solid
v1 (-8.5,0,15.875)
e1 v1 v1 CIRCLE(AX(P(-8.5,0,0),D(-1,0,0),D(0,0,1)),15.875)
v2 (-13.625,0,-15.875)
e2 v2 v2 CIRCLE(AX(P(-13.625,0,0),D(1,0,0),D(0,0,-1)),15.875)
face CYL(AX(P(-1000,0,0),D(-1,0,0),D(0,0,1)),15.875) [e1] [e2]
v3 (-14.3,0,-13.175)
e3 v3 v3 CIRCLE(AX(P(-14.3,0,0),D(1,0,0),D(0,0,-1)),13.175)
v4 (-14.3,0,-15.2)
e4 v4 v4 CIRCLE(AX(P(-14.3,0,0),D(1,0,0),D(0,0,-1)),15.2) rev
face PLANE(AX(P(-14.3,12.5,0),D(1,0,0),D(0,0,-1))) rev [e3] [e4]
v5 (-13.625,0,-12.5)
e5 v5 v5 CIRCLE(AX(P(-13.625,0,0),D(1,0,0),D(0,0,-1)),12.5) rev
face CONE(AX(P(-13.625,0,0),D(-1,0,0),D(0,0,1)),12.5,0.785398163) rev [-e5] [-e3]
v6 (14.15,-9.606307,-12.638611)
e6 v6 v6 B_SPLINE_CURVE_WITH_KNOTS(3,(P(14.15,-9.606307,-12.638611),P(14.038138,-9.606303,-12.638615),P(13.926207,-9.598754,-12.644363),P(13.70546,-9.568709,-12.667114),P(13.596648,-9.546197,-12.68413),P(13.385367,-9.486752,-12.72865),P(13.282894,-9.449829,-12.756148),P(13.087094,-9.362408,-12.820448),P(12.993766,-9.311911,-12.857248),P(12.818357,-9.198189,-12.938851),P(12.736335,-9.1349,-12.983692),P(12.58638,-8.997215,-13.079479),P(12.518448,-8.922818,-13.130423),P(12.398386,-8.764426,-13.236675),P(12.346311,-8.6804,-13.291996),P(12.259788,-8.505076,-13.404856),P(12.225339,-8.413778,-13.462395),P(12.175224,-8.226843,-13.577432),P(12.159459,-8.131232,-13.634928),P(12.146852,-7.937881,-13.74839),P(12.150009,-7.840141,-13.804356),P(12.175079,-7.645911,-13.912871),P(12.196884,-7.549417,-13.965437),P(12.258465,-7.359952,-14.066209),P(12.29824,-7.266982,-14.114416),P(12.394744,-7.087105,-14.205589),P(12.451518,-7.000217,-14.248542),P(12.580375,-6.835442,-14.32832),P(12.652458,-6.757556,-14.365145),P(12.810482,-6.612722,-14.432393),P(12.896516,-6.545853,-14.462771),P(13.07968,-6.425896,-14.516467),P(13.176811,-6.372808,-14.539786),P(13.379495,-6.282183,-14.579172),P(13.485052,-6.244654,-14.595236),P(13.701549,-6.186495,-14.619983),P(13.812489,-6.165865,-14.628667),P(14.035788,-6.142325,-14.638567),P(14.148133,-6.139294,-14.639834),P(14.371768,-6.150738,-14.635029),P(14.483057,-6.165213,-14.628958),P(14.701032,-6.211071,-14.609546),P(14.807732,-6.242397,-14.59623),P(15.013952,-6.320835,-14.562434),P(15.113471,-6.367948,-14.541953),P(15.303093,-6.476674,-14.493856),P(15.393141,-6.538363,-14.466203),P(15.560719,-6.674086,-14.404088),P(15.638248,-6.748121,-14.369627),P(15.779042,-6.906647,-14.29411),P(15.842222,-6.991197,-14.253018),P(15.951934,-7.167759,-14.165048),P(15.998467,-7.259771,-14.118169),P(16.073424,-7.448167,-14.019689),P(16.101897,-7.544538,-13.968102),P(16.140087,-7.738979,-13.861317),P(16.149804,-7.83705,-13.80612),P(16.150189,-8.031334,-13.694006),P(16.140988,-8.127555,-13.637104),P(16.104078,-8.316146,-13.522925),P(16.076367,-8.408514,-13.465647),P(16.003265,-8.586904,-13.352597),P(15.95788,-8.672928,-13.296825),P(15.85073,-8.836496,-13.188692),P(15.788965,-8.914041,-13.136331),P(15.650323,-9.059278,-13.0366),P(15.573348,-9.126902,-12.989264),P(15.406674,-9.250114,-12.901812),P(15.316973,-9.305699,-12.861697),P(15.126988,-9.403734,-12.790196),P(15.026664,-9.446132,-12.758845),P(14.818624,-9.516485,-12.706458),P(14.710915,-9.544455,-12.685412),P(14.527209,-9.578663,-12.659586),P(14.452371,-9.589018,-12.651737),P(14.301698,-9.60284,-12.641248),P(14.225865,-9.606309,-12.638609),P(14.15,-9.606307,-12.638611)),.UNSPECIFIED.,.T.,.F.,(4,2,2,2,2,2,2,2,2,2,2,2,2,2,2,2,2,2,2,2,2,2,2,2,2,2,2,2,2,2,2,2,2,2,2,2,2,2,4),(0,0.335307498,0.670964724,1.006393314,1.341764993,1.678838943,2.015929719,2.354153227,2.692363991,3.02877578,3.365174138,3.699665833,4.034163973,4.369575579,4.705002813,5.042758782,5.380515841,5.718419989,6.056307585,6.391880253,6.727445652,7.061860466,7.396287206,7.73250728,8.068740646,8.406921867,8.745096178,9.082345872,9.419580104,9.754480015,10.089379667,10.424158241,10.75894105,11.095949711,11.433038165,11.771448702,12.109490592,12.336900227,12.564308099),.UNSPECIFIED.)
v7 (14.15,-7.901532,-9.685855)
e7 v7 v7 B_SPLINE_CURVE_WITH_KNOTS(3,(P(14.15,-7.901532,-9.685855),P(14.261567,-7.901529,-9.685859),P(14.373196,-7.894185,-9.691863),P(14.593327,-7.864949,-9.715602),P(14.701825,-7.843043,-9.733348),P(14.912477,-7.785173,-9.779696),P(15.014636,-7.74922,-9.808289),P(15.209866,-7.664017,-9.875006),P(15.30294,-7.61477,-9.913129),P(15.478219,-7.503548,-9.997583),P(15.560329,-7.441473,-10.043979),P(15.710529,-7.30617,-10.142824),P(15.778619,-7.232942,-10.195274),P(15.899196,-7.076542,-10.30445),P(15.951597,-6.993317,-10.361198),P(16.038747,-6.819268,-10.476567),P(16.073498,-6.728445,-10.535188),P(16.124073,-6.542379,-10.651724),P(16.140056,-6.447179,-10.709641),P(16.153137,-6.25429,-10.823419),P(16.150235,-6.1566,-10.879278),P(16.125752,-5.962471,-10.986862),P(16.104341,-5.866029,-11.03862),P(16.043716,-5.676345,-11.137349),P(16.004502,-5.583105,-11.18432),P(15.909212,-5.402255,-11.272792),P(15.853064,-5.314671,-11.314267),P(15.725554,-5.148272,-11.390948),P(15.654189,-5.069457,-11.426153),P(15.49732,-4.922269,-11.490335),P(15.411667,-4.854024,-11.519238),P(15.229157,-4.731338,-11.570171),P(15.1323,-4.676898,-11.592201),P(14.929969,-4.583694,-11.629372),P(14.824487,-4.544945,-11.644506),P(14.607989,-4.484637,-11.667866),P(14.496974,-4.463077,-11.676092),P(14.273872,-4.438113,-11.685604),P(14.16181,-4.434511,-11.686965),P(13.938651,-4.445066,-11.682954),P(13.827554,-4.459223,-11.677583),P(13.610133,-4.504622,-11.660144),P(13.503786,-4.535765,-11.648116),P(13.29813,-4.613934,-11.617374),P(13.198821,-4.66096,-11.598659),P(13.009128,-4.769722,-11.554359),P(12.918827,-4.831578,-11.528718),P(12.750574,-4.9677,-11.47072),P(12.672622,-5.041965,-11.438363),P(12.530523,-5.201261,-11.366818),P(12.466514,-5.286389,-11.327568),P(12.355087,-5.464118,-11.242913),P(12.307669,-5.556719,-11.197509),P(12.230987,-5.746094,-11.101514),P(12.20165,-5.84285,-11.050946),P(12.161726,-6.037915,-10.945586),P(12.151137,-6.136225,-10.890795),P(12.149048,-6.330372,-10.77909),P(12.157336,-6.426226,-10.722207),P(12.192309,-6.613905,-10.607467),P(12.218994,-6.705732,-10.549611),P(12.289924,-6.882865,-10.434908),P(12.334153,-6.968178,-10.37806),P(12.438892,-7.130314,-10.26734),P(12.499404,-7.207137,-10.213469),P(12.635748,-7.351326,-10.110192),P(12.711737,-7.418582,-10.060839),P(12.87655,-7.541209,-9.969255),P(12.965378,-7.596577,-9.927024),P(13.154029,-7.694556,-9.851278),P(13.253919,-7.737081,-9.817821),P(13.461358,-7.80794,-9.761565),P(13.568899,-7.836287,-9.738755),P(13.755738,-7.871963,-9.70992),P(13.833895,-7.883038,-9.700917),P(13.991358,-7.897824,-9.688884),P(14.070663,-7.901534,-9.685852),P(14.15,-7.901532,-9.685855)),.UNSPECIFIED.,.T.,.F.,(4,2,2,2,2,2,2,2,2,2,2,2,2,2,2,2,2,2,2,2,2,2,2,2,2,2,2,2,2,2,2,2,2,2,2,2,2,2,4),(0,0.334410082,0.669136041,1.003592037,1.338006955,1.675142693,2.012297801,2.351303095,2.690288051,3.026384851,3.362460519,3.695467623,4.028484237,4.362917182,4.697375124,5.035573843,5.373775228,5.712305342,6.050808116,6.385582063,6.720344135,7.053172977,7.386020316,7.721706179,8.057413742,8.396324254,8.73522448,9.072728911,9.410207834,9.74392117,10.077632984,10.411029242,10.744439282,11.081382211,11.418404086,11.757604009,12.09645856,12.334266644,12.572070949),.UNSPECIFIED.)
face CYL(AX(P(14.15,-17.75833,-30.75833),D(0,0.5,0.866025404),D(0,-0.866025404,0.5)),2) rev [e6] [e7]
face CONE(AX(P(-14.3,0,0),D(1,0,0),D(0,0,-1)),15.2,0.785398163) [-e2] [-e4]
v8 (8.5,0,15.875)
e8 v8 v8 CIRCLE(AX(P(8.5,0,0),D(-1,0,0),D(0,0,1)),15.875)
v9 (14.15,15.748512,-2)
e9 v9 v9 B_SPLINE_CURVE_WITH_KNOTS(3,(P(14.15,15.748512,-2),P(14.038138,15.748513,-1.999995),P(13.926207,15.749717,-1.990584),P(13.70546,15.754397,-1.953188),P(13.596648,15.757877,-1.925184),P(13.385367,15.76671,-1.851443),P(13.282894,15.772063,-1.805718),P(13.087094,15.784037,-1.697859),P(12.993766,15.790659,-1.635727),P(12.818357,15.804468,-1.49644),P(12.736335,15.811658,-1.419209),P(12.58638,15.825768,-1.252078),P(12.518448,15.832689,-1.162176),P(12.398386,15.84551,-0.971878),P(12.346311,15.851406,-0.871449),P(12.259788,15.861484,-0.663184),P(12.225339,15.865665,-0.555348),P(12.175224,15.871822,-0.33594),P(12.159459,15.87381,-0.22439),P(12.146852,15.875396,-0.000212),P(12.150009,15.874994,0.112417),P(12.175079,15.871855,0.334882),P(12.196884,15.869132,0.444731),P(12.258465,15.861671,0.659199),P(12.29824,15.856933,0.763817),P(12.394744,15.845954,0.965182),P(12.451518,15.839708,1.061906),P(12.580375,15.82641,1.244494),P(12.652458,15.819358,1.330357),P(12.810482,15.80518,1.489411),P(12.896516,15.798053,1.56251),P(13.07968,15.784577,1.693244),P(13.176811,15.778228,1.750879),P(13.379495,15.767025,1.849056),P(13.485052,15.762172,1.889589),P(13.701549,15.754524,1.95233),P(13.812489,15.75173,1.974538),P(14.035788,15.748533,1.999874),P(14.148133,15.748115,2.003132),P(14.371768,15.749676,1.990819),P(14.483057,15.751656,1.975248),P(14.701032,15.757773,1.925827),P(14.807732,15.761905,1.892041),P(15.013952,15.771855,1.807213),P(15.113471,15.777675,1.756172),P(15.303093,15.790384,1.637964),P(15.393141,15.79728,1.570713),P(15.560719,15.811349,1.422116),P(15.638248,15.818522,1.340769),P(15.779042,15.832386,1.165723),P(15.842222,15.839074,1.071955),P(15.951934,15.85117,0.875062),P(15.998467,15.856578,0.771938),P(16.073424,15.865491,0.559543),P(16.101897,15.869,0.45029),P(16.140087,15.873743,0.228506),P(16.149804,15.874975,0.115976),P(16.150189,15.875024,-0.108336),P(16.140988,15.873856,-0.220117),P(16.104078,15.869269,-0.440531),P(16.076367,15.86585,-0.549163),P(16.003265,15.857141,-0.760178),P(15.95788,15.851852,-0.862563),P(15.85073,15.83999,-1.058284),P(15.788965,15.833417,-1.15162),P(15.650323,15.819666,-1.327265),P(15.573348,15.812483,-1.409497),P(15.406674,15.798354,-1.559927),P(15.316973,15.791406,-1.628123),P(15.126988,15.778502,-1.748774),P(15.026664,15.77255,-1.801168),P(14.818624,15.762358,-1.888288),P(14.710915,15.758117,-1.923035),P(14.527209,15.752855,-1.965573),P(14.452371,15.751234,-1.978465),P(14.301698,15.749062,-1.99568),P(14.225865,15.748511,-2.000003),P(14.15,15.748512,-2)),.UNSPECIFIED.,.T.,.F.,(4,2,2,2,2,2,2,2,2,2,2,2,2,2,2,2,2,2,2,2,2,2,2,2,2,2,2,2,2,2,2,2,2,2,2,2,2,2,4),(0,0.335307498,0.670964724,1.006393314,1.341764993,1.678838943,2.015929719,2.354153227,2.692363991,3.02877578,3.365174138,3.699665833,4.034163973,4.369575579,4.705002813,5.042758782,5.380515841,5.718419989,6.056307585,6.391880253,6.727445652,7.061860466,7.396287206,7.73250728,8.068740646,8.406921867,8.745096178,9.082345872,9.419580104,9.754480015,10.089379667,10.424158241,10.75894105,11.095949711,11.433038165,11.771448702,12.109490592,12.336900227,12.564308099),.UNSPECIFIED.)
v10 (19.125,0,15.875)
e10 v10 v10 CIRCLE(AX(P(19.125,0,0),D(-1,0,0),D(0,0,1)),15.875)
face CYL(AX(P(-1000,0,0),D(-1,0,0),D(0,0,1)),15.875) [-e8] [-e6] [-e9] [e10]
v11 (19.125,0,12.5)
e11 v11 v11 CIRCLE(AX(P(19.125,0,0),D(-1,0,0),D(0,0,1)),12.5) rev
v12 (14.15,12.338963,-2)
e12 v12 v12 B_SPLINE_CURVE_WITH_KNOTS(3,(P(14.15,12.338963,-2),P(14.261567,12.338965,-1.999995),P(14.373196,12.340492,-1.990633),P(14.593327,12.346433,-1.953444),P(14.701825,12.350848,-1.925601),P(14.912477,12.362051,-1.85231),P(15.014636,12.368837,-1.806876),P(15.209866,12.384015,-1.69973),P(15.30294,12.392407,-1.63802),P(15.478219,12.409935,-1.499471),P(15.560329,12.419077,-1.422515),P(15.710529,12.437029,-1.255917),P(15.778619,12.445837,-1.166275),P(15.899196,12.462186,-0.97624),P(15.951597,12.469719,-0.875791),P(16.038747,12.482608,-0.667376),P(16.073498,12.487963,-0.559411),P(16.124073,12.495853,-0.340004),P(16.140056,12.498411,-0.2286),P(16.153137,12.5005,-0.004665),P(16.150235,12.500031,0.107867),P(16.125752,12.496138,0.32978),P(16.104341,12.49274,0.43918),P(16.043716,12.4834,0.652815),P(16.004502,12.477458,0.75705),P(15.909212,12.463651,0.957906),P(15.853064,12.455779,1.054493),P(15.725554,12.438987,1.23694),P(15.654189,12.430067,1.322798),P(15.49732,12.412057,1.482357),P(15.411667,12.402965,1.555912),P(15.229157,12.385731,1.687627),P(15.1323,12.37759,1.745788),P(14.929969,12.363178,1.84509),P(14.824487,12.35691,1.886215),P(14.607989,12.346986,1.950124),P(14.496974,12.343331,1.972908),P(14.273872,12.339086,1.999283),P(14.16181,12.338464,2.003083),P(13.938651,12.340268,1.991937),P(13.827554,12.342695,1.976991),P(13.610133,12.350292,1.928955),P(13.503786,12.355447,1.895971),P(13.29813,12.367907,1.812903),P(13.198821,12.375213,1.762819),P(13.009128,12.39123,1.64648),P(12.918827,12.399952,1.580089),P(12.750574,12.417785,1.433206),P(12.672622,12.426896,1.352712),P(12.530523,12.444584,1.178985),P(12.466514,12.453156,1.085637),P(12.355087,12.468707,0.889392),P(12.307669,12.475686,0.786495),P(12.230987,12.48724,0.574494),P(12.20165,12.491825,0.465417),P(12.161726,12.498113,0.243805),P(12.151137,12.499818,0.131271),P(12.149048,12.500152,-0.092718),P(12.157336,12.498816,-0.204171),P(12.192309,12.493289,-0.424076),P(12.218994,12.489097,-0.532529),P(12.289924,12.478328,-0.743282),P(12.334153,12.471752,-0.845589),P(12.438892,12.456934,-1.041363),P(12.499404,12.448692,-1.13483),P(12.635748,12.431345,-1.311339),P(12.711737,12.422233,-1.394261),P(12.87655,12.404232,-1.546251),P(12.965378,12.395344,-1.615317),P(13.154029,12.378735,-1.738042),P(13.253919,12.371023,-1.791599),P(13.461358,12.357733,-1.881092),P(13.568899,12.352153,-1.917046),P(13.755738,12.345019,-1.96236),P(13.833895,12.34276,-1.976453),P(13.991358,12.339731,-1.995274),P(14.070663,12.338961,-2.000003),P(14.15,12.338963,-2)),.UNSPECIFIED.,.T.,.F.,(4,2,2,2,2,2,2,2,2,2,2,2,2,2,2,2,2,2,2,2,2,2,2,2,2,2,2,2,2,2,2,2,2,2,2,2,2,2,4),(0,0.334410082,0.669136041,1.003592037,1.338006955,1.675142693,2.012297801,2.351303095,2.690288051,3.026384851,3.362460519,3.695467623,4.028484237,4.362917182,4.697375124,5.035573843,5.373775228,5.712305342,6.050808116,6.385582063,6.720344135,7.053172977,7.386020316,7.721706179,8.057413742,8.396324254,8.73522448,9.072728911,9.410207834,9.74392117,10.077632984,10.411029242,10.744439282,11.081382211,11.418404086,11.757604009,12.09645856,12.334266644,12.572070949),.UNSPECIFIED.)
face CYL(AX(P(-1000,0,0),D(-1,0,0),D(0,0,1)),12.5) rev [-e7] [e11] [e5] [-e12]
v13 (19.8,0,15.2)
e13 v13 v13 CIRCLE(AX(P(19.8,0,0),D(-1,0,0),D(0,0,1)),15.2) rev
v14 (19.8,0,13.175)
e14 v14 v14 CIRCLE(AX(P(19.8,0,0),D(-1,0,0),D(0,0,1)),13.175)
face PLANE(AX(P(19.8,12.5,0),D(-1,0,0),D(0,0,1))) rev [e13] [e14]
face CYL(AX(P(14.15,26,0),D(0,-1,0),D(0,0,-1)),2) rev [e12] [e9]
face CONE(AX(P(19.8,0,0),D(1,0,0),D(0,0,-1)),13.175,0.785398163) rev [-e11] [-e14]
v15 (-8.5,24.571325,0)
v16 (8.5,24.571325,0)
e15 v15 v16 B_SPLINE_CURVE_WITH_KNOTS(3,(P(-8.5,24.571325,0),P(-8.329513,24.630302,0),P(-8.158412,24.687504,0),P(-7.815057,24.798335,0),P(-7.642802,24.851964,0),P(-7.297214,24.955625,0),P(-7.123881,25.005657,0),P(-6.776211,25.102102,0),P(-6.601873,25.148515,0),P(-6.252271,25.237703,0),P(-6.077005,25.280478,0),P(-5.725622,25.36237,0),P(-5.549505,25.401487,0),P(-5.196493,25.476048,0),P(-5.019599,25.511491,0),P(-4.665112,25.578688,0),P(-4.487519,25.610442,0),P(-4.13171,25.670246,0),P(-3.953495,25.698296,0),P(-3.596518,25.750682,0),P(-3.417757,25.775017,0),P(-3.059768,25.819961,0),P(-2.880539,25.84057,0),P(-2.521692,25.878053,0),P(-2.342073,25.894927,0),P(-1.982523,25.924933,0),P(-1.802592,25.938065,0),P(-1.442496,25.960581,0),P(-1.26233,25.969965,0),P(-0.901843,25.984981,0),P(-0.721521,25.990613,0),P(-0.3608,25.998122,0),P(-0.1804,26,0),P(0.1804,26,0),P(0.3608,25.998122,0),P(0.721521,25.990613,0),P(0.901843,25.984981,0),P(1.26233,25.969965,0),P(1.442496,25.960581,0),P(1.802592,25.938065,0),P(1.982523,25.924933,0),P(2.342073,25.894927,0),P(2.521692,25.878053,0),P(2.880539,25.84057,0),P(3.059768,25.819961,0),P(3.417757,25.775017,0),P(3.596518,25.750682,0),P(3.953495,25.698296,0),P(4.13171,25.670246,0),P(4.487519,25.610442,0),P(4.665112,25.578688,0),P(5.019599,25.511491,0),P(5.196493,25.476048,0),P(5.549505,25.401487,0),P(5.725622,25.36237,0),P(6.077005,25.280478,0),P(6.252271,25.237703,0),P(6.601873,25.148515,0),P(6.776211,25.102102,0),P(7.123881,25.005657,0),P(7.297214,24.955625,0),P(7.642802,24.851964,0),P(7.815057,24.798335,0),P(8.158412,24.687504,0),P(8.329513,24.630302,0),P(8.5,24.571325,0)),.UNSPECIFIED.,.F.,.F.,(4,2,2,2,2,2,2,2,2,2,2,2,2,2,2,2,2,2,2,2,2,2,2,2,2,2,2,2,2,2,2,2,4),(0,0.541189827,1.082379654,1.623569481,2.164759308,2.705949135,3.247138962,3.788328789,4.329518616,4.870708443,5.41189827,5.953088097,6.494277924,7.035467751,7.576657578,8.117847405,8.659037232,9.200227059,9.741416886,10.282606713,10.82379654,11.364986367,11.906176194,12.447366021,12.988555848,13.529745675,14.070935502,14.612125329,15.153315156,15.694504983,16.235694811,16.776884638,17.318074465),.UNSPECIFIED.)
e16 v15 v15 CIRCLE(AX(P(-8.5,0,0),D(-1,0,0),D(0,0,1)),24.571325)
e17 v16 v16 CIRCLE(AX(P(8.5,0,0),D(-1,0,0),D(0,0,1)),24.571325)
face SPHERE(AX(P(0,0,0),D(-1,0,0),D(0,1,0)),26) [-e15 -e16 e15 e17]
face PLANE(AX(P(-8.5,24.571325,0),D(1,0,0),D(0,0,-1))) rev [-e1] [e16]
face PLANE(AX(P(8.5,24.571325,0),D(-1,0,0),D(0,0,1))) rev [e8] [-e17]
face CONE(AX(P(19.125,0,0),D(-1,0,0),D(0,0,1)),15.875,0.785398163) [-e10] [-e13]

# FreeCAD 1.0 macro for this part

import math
import FreeCAD as App
import Part
import Sketcher
Q = App.Units.Quantity


def edges_at(feature, points):
    """Names of the edges that pass closest to the given points."""
    edges = feature.Shape.Edges
    near = lambda p: min(range(len(edges)), key=lambda i: edges[i].distToShape(Part.Vertex(*p))[0])
    return sorted({f"Edge{near(p) + 1}" for p in points})

doc = App.newDocument("Part")
params = doc.addObject("Spreadsheet::Sheet", "Params")
for row, (alias, value) in enumerate([
    ("sketch1_radius", "26 mm"),
    ("sketch1_width", "5.8 mm"),
    ("sketch1_width2", "34.1 mm"),
    ("sketch1_width3", "11.3 mm"),
    ("revolution_angle", "360 deg"),
    ("sketch2_diameter", "4 mm"),
    ("chamfer_size", "0.675 mm"),
], start=1):
    params.set(f"A{row}", alias)
    params.set(f"B{row}", "=" + value)
    params.setAlias(f"B{row}", alias)

body = doc.addObject("PartDesign::Body", "Body")

sketch1 = body.newObject("Sketcher::SketchObject", "Sketch")
sketch1.AttachmentSupport = (doc.getObject("XY_Plane"), [""])
sketch1.MapMode = "FlatFace"
sketch1.addGeometry(Part.LineSegment(App.Vector(-8.5, 24.6, 0), App.Vector(-8.5, 15.9, 0)), False)
sketch1.addGeometry(Part.LineSegment(App.Vector(-8.5, 15.9, 0), App.Vector(-14.3, 15.9, 0)), False)
sketch1.addGeometry(Part.LineSegment(App.Vector(-14.3, 15.9, 0), App.Vector(-14.3, 12.5, 0)), False)
sketch1.addGeometry(Part.LineSegment(App.Vector(-14.3, 12.5, 0), App.Vector(19.8, 12.5, 0)), False)
sketch1.addGeometry(Part.LineSegment(App.Vector(19.8, 12.5, 0), App.Vector(19.8, 15.9, 0)), False)
sketch1.addGeometry(Part.LineSegment(App.Vector(19.8, 15.9, 0), App.Vector(8.5, 15.9, 0)), False)
sketch1.addGeometry(Part.LineSegment(App.Vector(8.5, 15.9, 0), App.Vector(8.5, 24.6, 0)), False)
sketch1.addGeometry(Part.ArcOfCircle(Part.Circle(App.Vector(0, 0, 0), App.Vector(0, 0, 1), 26), math.radians(71), math.radians(109)), False)
sketch1.addConstraint(Sketcher.Constraint("Coincident", 0, 2, 1, 1))
sketch1.addConstraint(Sketcher.Constraint("Coincident", 1, 2, 2, 1))
sketch1.addConstraint(Sketcher.Constraint("Coincident", 2, 2, 3, 1))
sketch1.addConstraint(Sketcher.Constraint("Coincident", 3, 2, 4, 1))
sketch1.addConstraint(Sketcher.Constraint("Coincident", 4, 2, 5, 1))
sketch1.addConstraint(Sketcher.Constraint("Coincident", 5, 2, 6, 1))
sketch1.addConstraint(Sketcher.Constraint("Coincident", 6, 2, 7, 1))
sketch1.addConstraint(Sketcher.Constraint("Coincident", 7, 2, 0, 1))
sketch1.addConstraint(Sketcher.Constraint("Vertical", 0))
sketch1.addConstraint(Sketcher.Constraint("Horizontal", 1))
sketch1.addConstraint(Sketcher.Constraint("Vertical", 2))
sketch1.addConstraint(Sketcher.Constraint("Horizontal", 3))
sketch1.addConstraint(Sketcher.Constraint("Vertical", 4))
sketch1.addConstraint(Sketcher.Constraint("Horizontal", 5))
sketch1.addConstraint(Sketcher.Constraint("Vertical", 6))
sketch1.addConstraint(Sketcher.Constraint("Coincident", 7, 3, -1, 1))
sketch1.addConstraint(Sketcher.Constraint("Symmetric", 0, 2, 5, 2, -2))
sketch1.addConstraint(Sketcher.Constraint("Radius", 7, Q("26 mm")))
sketch1.addConstraint(Sketcher.Constraint("DistanceX", 1, 2, 1, 1, Q("5.8 mm")))
sketch1.addConstraint(Sketcher.Constraint("DistanceX", 3, 1, 3, 2, Q("34.1 mm")))
sketch1.addConstraint(Sketcher.Constraint("DistanceX", 5, 2, 5, 1, Q("11.3 mm")))
sketch1.addConstraint(Sketcher.Constraint("DistanceY", -1, 1, 2, 2, Q("12.5 mm")))
sketch1.addConstraint(Sketcher.Constraint("DistanceY", 2, 2, 2, 1, Q("3.375 mm")))
sketch1.setExpression("Constraints[17]", "Params.sketch1_radius")
sketch1.setExpression("Constraints[18]", "Params.sketch1_width")
sketch1.setExpression("Constraints[19]", "Params.sketch1_width2")
sketch1.setExpression("Constraints[20]", "Params.sketch1_width3")
revolution = body.newObject("PartDesign::Revolution", "Revolution")
revolution.Profile = sketch1
revolution.ReferenceAxis = (sketch1, ["H_Axis"])
revolution.setExpression("Angle", "Params.revolution_angle")

sketch2 = body.newObject("Sketcher::SketchObject", "Sketch001")
sketch2.AttachmentSupport = (doc.getObject("XZ_Plane"), [""])
sketch2.MapMode = "FlatFace"
sketch2.addGeometry(Part.Circle(App.Vector(14.2, 0, 0), App.Vector(0, 0, 1), 2), False)
sketch2.addConstraint(Sketcher.Constraint("PointOnObject", 0, 3, -1))
sketch2.addConstraint(Sketcher.Constraint("Diameter", 0, Q("4 mm")))
sketch2.addConstraint(Sketcher.Constraint("DistanceX", -1, 1, 0, 3, Q("14.15 mm")))
sketch2.setExpression("Constraints[1]", "Params.sketch2_diameter")
pocket1 = body.newObject("PartDesign::Pocket", "Pocket")
pocket1.Profile = sketch2
pocket1.Type = "ThroughAll"
doc.recompute()

polarpattern = body.newObject("PartDesign::PolarPattern", "PolarPattern")
polarpattern.Originals = [pocket1]
polarpattern.Axis = (doc.getObject("X_Axis"), [""])
polarpattern.Angle = 120
polarpattern.Occurrences = 2
polarpattern.Reversed = True
body.Tip = polarpattern
doc.recompute()

chamfer = body.newObject("PartDesign::Chamfer", "Chamfer")
chamfer.Base = (polarpattern, edges_at(polarpattern, [
    (-14.3, 0, -15.875),
    (-14.3, 0, -12.5),
    (19.8, 0, -12.5),
    (19.8, 0, -15.875),
]))
chamfer.setExpression("Size", "Params.chamfer_size")

doc.recompute()
